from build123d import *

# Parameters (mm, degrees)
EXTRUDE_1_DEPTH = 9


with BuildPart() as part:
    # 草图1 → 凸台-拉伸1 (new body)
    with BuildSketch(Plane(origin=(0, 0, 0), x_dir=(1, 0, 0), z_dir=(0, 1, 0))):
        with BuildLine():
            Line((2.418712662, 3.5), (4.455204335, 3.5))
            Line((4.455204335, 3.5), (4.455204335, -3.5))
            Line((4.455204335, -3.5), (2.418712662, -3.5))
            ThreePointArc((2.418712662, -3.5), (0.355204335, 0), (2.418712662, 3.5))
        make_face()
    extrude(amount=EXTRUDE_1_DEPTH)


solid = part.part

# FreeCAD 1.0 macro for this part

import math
import FreeCAD as App
import Part
import Sketcher

V = App.Vector
Q = App.Units.Quantity

doc = App.newDocument("Part")
body = doc.addObject("PartDesign::Body", "Body")

# Sketch on XZ plane
sketch1 = body.newObject("Sketcher::SketchObject", "Sketch")
sketch1.AttachmentSupport = (doc.getObject("XZ_Plane"), [""])
sketch1.MapMode = "FlatFace"
sketch1.addGeometry([
    Part.LineSegment(V(4.5, -3.5, 0), V(2.4, -3.5, 0)),
    Part.ArcOfCircle(Part.Circle(V(4.4, 0, 0), V(0, 0, 1), 4), math.radians(119), math.radians(241)),
    Part.LineSegment(V(2.4, 3.5, 0), V(4.5, 3.5, 0)),
    Part.LineSegment(V(4.5, 3.5, 0), V(4.5, -3.5, 0)),
], False)
sketch1.addConstraint([
    Sketcher.Constraint("Coincident", 0, 2, 1, 2),
    Sketcher.Constraint("Coincident", 1, 1, 2, 1),
    Sketcher.Constraint("Coincident", 2, 2, 3, 1),
    Sketcher.Constraint("Coincident", 3, 2, 0, 1),
    Sketcher.Constraint("Horizontal", 0),
    Sketcher.Constraint("Horizontal", 2),
    Sketcher.Constraint("Vertical", 3),
    Sketcher.Constraint("Symmetric", 0, 2, 1, 1, -1),
    Sketcher.Constraint("Radius", 1, Q("4 mm")),
    Sketcher.Constraint("DistanceY", 3, 2, 3, 1, Q("7 mm")),
    Sketcher.Constraint("DistanceX", 1, 3, 2, 2, Q("0.1 mm")),
    Sketcher.Constraint("DistanceX", -1, 1, 1, 3, Q("4.355204 mm")),
])
pad1 = body.newObject("PartDesign::Pad", "Pad")
pad1.Profile = sketch1
pad1.Length = 9
pad1.Reversed = True

doc.recompute()
